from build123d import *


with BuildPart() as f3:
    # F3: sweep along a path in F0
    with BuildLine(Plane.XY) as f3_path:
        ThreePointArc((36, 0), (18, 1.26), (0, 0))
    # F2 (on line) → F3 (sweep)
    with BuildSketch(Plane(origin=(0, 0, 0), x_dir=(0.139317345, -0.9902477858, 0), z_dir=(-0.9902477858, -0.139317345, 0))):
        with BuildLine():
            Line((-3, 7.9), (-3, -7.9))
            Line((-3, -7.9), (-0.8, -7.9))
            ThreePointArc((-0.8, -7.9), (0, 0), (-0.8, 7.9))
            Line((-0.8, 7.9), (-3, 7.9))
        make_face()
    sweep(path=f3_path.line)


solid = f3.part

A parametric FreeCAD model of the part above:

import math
import FreeCAD as App
import Part
import Sketcher

V = App.Vector

doc = App.newDocument("Part")
body = doc.addObject("PartDesign::Body", "Body")

# Sketch on an angled plane
sketch1 = body.newObject("Sketcher::SketchObject", "Sketch")
sketch1.Placement = App.Placement(V(0, 0, 0), App.Rotation(V(0.139317345, -0.990247786, 0), V(0, 0, 1), V(-0.990247786, -0.139317345, 0), "ZXY"))
sketch1.addGeometry(Part.LineSegment(V(-3, 7.9, 0), V(-3, -7.9, 0)), False)
sketch1.addGeometry(Part.LineSegment(V(-3, -7.9, 0), V(-0.8, -7.9, 0)), False)
sketch1.addGeometry(Part.ArcOfCircle(Part.Circle(V(-39.40625, 0, 0), V(0, 0, 1), 39.40625), math.radians(-11.564785), math.radians(11.564785)), False)
sketch1.addGeometry(Part.LineSegment(V(-0.8, 7.9, 0), V(-3, 7.9, 0)), False)
sketch1.addConstraint(Sketcher.Constraint("Coincident", 0, 2, 1, 1))
sketch1.addConstraint(Sketcher.Constraint("Coincident", 1, 2, 2, 1))
sketch1.addConstraint(Sketcher.Constraint("Coincident", 2, 2, 3, 1))
sketch1.addConstraint(Sketcher.Constraint("Coincident", 3, 2, 0, 1))
sketch1.addConstraint(Sketcher.Constraint("Vertical", 0))
sketch1.addConstraint(Sketcher.Constraint("Horizontal", 1))
sketch1.addConstraint(Sketcher.Constraint("Horizontal", 3))
sketch1.addConstraint(Sketcher.Constraint("Symmetric", 1, 2, 2, 2, -1))
sketch1.addConstraint(Sketcher.Constraint("DistanceX", 1, 1, 1, 2, 2.2))
sketch1.addConstraint(Sketcher.Constraint("DistanceY", 0, 2, 0, 1, 15.8))
sketch1.addConstraint(Sketcher.Constraint("DistanceX", 0, 2, -1, 1, 3.0))
sketch1.addConstraint(Sketcher.Constraint("Radius", 2, 39.40625))

# Sketch on XY plane
sketch2 = body.newObject("Sketcher::SketchObject", "Sketch001")
sketch2.AttachmentSupport = (doc.getObject("XY_Plane"), [""])
sketch2.MapMode = "FlatFace"
sketch2.addGeometry(Part.ArcOfCircle(Part.Circle(V(18, -127.941429, 0), V(0, 0, 1), 129.201429), math.radians(81.991654), math.radians(98.008346)), False)
sketch2.addConstraint(Sketcher.Constraint("Coincident", 0, 2, -1, 1))
sketch2.addConstraint(Sketcher.Constraint("PointOnObject", 0, 1, -1))
sketch2.addConstraint(Sketcher.Constraint("DistanceX", -1, 1, 0, 3, 18.0))
sketch2.addConstraint(Sketcher.Constraint("Radius", 0, 129.201429))
doc.recompute()

additivepipe = body.newObject("PartDesign::AdditivePipe", "AdditivePipe")
additivepipe.Profile = sketch1
additivepipe.Spine = (sketch2, ["Edge1"])

doc.recompute()
